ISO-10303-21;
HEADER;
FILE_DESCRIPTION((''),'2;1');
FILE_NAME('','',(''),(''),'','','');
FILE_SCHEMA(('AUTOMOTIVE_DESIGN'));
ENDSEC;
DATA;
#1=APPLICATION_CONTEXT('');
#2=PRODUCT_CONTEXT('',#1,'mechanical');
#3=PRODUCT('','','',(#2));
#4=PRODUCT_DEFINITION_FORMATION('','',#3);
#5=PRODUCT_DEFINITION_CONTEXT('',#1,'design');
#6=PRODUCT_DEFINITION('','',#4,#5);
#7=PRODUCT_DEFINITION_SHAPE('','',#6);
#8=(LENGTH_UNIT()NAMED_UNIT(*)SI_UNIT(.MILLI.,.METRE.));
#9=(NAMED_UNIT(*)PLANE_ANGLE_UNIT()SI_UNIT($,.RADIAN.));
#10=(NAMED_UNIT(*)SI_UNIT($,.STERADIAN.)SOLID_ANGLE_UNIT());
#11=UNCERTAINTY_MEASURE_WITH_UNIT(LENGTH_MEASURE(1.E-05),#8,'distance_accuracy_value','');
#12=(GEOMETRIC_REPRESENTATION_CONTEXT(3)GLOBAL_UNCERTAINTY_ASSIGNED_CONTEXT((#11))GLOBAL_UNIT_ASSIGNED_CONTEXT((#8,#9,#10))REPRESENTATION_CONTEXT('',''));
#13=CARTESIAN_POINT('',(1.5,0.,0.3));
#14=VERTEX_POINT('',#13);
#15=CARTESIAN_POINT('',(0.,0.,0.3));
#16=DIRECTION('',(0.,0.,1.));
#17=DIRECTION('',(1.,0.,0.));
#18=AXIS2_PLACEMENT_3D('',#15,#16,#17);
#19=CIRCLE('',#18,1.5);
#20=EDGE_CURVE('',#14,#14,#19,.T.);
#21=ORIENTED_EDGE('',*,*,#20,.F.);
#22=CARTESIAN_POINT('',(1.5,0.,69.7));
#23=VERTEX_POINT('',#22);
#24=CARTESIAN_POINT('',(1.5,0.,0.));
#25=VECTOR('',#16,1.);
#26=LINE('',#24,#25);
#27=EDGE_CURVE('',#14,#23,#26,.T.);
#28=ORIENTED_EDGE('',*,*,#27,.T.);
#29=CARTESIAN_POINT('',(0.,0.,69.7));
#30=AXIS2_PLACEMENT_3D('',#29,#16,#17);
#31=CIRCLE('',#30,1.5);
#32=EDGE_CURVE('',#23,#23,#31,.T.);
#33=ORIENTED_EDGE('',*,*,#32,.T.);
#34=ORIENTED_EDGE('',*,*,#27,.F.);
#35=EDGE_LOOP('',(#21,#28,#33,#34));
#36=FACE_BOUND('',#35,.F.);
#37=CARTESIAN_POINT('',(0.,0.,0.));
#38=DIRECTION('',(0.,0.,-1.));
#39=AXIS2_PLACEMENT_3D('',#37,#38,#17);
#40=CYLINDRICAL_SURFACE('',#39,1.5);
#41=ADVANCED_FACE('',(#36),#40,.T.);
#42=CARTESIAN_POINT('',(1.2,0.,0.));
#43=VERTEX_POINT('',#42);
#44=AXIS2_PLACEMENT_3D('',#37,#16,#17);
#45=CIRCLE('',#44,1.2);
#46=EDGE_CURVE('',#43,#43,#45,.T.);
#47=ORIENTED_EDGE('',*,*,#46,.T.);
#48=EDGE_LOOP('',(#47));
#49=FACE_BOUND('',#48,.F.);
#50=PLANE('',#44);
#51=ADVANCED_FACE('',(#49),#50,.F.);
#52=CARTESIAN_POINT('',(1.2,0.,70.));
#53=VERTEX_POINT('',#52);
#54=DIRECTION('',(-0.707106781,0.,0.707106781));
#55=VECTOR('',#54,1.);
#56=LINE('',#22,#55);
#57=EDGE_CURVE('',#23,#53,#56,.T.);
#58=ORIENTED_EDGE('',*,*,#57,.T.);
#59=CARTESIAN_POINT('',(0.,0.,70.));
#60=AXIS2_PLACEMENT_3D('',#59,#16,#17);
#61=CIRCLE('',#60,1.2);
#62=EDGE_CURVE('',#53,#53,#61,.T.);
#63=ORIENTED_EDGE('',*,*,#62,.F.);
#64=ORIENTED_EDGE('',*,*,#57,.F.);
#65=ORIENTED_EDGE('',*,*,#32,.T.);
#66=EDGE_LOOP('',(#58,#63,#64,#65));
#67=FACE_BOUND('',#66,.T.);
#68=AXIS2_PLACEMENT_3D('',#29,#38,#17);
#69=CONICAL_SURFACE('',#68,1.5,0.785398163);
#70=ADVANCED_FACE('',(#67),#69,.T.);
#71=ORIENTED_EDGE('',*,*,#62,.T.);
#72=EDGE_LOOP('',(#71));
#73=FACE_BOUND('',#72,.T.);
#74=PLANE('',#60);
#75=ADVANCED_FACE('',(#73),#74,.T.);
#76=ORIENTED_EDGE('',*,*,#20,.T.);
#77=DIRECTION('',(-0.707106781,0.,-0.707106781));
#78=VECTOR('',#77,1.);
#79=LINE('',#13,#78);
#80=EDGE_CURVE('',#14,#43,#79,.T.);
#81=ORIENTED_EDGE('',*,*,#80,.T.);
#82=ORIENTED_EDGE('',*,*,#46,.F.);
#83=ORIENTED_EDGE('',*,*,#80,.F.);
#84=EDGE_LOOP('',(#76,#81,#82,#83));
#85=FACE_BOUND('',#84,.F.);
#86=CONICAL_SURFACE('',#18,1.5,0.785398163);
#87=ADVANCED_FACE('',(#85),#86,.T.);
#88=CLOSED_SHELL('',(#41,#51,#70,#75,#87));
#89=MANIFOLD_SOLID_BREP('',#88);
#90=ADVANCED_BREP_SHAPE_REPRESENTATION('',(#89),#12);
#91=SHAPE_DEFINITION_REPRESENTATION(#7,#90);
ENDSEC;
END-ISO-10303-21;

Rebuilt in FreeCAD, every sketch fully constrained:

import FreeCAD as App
import Part
import Sketcher

V = App.Vector
Q = App.Units.Quantity


def edges_at(feature, points):
    """Names of the edges that pass closest to the given points."""
    edges = feature.Shape.Edges
    near = lambda p: min(range(len(edges)), key=lambda i: edges[i].distToShape(Part.Vertex(*p))[0])
    return sorted({f"Edge{near(p) + 1}" for p in points})

doc = App.newDocument("Part")
body = doc.addObject("PartDesign::Body", "Body")

# Sketch on XY plane
sketch1 = body.newObject("Sketcher::SketchObject", "Sketch")
sketch1.AttachmentSupport = (doc.getObject("XY_Plane"), [""])
sketch1.MapMode = "FlatFace"
sketch1.addGeometry(Part.Circle(V(0, 0, 0), V(0, 0, 1), 1.5), False)
sketch1.addConstraint([
    Sketcher.Constraint("Coincident", 0, 3, -1, 1),
    Sketcher.Constraint("Diameter", 0, Q("3 mm")),
])
pad1 = body.newObject("PartDesign::Pad", "Pad")
pad1.Profile = sketch1
pad1.Length = 70
doc.recompute()

chamfer = body.newObject("PartDesign::Chamfer", "Chamfer")
chamfer.Base = (pad1, edges_at(pad1, [(-1.5, 0, 70), (-1.5, 0, 0)]))
chamfer.Size = 0.3

doc.recompute()
